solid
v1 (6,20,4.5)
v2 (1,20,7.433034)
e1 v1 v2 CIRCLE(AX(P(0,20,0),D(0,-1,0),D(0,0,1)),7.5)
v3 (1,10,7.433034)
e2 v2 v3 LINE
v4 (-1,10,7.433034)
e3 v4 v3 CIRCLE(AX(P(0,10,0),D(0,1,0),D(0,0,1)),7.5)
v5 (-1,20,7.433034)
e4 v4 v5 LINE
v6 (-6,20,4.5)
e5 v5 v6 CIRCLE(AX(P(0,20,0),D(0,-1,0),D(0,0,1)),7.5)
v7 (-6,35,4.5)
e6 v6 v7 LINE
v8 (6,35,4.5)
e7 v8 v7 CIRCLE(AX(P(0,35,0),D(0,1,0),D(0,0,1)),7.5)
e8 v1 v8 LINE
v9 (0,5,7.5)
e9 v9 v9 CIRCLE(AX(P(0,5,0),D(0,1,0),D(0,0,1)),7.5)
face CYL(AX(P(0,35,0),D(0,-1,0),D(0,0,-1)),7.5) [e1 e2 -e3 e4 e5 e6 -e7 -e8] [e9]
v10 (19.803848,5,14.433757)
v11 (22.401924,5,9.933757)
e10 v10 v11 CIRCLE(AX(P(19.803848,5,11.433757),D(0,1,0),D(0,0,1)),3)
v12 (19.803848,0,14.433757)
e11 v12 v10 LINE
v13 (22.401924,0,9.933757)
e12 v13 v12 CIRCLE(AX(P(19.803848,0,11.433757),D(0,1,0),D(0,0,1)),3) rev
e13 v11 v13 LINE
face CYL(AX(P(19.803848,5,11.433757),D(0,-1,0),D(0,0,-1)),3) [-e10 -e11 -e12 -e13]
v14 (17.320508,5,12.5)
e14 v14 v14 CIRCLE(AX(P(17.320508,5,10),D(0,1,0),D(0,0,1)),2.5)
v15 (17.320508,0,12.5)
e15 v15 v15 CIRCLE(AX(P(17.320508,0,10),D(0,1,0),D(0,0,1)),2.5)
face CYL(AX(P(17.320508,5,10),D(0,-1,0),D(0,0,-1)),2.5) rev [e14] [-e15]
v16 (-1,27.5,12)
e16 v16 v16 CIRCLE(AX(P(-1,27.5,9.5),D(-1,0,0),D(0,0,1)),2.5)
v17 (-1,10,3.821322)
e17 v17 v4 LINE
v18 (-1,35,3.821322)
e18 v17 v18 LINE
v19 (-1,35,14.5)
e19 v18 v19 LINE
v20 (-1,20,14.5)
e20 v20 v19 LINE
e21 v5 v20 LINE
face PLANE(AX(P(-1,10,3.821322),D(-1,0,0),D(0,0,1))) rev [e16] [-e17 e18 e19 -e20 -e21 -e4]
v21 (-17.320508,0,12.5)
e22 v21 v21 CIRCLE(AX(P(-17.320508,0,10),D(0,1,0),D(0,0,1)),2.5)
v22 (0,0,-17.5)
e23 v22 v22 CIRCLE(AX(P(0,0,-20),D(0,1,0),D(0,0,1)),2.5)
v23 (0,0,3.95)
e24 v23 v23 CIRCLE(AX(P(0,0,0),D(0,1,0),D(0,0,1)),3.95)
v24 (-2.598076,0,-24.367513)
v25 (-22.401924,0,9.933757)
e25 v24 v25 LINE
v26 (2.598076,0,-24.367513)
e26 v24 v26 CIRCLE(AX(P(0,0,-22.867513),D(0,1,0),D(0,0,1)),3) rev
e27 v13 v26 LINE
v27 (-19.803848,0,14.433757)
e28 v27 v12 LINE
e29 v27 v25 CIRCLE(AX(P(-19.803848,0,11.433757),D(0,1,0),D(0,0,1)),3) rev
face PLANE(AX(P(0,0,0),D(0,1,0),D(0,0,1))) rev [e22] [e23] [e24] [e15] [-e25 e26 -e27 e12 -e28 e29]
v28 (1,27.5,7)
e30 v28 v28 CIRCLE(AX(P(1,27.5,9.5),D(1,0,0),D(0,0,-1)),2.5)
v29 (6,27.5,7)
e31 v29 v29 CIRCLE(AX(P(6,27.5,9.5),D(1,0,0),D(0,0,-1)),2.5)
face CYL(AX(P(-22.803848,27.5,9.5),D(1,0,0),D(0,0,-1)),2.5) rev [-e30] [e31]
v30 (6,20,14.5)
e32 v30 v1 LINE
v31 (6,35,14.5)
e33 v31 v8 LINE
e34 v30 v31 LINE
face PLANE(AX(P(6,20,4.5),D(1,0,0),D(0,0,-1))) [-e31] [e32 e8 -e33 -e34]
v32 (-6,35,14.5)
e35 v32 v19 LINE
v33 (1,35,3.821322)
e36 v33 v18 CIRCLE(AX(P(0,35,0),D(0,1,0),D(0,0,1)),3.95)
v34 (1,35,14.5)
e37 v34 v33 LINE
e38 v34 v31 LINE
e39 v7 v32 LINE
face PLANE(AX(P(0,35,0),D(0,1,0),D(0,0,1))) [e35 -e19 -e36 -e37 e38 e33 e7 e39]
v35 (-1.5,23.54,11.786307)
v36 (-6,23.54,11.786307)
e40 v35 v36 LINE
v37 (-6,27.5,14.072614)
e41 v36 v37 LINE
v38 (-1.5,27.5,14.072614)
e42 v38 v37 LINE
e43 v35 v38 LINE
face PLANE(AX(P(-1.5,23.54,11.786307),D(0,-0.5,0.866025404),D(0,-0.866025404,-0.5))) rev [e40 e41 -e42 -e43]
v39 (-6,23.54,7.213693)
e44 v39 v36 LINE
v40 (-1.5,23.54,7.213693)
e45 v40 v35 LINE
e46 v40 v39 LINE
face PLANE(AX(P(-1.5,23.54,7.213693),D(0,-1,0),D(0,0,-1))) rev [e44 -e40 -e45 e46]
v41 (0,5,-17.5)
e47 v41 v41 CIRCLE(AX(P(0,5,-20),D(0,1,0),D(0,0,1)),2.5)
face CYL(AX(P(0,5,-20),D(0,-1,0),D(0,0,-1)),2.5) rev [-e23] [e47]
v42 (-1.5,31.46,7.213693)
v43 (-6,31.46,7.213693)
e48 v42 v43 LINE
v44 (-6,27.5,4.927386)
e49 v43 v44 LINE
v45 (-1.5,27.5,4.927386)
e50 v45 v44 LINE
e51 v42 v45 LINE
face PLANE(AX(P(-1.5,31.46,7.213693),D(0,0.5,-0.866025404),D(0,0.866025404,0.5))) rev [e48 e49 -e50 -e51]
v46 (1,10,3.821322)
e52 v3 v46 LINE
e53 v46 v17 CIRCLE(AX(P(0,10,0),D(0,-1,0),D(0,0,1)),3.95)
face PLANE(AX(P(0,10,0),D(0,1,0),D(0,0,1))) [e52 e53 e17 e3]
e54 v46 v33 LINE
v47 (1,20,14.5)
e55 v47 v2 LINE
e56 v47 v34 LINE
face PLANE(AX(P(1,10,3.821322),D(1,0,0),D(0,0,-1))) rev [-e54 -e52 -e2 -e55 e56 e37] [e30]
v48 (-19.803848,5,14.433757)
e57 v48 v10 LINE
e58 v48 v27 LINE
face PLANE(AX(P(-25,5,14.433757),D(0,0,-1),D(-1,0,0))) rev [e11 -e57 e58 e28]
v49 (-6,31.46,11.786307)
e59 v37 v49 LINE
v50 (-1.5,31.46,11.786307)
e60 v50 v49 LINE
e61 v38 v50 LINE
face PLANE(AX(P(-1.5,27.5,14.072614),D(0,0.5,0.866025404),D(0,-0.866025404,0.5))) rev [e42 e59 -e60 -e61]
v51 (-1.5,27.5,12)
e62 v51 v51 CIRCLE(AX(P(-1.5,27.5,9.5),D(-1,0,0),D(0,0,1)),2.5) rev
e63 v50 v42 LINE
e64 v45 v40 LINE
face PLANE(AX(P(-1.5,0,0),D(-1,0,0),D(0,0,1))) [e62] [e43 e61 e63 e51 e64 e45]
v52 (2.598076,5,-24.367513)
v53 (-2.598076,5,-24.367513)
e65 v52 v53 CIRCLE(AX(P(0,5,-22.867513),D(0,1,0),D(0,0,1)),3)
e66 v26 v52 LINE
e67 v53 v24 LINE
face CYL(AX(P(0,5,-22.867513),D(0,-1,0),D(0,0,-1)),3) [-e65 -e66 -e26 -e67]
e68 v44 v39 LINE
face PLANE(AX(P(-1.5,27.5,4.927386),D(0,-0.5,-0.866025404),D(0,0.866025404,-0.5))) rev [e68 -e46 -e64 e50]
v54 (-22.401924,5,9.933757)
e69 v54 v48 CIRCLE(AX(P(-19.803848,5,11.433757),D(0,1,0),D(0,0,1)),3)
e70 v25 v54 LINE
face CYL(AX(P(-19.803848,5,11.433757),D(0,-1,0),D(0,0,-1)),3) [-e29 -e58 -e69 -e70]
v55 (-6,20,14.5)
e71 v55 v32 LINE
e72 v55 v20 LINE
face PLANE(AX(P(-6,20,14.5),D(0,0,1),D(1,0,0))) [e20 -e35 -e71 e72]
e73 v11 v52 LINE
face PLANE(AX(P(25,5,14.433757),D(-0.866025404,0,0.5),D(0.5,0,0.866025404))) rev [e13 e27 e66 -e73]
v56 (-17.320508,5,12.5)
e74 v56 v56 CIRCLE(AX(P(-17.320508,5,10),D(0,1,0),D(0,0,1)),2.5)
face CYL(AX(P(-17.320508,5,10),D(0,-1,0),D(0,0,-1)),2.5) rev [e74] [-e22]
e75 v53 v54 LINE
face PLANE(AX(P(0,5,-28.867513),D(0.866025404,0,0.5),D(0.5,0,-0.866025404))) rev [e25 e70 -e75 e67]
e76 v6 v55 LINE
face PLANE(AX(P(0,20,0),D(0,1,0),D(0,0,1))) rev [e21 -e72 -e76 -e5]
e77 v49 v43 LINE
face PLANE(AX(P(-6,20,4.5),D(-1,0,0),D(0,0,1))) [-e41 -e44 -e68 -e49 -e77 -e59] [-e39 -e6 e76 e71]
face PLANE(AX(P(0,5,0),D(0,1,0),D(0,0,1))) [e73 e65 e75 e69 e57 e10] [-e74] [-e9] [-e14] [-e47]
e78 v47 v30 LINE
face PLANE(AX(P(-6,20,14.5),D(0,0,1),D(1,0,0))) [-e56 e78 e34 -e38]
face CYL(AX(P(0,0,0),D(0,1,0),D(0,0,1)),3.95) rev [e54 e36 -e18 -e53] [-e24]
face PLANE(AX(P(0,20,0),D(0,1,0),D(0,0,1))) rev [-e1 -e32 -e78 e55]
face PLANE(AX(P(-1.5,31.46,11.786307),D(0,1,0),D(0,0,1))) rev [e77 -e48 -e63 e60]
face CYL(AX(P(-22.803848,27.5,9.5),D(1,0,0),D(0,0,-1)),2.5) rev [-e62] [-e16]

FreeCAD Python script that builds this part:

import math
import FreeCAD as App
import Part
import Sketcher

V = App.Vector
Q = App.Units.Quantity


def edges_at(feature, points):
    """Names of the edges that pass closest to the given points."""
    edges = feature.Shape.Edges
    near = lambda p: min(range(len(edges)), key=lambda i: edges[i].distToShape(Part.Vertex(*p))[0])
    return sorted({f"Edge{near(p) + 1}" for p in points})


def add_polygon(sketch, points):
    """Adds a closed chain of lines whose ends are joined by coincident constraints."""
    first, n = sketch.GeometryCount, len(points)
    for a, b in zip(points, points[1:] + points[:1]):
        sketch.addGeometry(Part.LineSegment(App.Vector(*a, 0), App.Vector(*b, 0)), False)
    for i in range(n):
        sketch.addConstraint(Sketcher.Constraint("Coincident", first + i, 2, first + (i + 1) % n, 1))

doc = App.newDocument("Part")
params = doc.addObject("Spreadsheet::Sheet", "Params")
for row, (alias, value) in enumerate([
    ("sketch1_diameter", "5 mm"),
    ("sketch1_width", "50 mm"),
    ("pad1_length", "5 mm"),
    ("sketch2_diameter", "15 mm"),
    ("pad2_length", "30 mm"),
    ("sketch3_radius", "7.5 mm"),
    ("sketch3_width", "12 mm"),
    ("sketch3_height", "10 mm"),
    ("pad3_length", "15 mm"),
    ("sketch4_diameter", "7.9 mm"),
    ("sketch5_width", "2 mm"),
    ("sketch5_radius", "3.95 mm"),
    ("pocket2_length", "25 mm"),
    ("fillet_radius", "3 mm"),
    ("sketch6_diameter", "5 mm"),
    ("pocket4_length", "4.5 mm"),
], start=1):
    params.set(f"A{row}", alias)
    params.set(f"B{row}", "=" + value)
    params.setAlias(f"B{row}", alias)

body = doc.addObject("PartDesign::Body", "Body")

sketch1 = body.newObject("Sketcher::SketchObject", "Sketch")
sketch1.AttachmentSupport = (doc.getObject("XZ_Plane"), [""])
sketch1.MapMode = "FlatFace"
add_polygon(sketch1, [(-25, 14.4), (25, 14.4), (0, -28.9)])
sketch1.addGeometry(Part.Circle(V(-17.3, 10, 0), V(0, 0, 1), 2.5), False)
sketch1.addGeometry(Part.Circle(V(17.3, 10, 0), V(0, 0, 1), 2.5), False)
sketch1.addGeometry(Part.Circle(V(0, -20, 0), V(0, 0, 1), 2.5), False)
sketch1.addConstraint(Sketcher.Constraint("Horizontal", 0))
sketch1.addConstraint(Sketcher.Constraint("Equal", 3, 4))
sketch1.addConstraint(Sketcher.Constraint("Equal", 4, 5))
sketch1.addConstraint(Sketcher.Constraint("Symmetric", 3, 3, 4, 3, -2))
sketch1.addConstraint(Sketcher.Constraint("PointOnObject", 5, 3, -2))
sketch1.addConstraint(Sketcher.Constraint("PointOnObject", 1, 2, -2))
sketch1.addConstraint(Sketcher.Constraint("Equal", 1, 2))
sketch1.addConstraint(Sketcher.Constraint("Diameter", 3, 5.0))
sketch1.addConstraint(Sketcher.Constraint("DistanceX", 0, 1, 0, 2, 50.0))
sketch1.addConstraint(Sketcher.Constraint("Angle", 1, Q("-120 deg")))
sketch1.addConstraint(Sketcher.Constraint("DistanceY", -1, 1, 3, 3, 10.0))
sketch1.addConstraint(Sketcher.Constraint("DistanceY", 5, 3, -1, 1, 20.0))
sketch1.addConstraint(Sketcher.Constraint("DistanceX", 3, 3, -1, 1, 17.320508))
sketch1.addConstraint(Sketcher.Constraint("DistanceY", -1, 1, 0, 2, 14.433757))
sketch1.setExpression("Constraints[10]", "Params.sketch1_diameter")
sketch1.setExpression("Constraints[11]", "Params.sketch1_width")
pad1 = body.newObject("PartDesign::Pad", "Pad")
pad1.Profile = sketch1
pad1.setExpression("Length", "Params.pad1_length")
pad1.Reversed = True

sketch2 = body.newObject("Sketcher::SketchObject", "Sketch001")
sketch2.AttachmentSupport = (doc.getObject("XZ_Plane"), [""])
sketch2.MapMode = "FlatFace"
sketch2.AttachmentOffset = App.Placement(V(0, 0, -5), App.Rotation())
sketch2.addGeometry(Part.Circle(V(0, 0, 0), V(0, 0, 1), 8), False)
sketch2.addConstraint(Sketcher.Constraint("Coincident", 0, 3, -1, 1))
sketch2.addConstraint(Sketcher.Constraint("Diameter", 0, 15.0))
sketch2.setExpression("Constraints[1]", "Params.sketch2_diameter")
pad2 = body.newObject("PartDesign::Pad", "Pad001")
pad2.Profile = sketch2
pad2.setExpression("Length", "Params.pad2_length")
pad2.Reversed = True

sketch3 = body.newObject("Sketcher::SketchObject", "Sketch002")
sketch3.AttachmentSupport = (doc.getObject("XZ_Plane"), [""])
sketch3.MapMode = "FlatFace"
sketch3.AttachmentOffset = App.Placement(V(0, 0, -20), App.Rotation())
sketch3.addGeometry(Part.LineSegment(V(-6, 4, 0), V(-6, 14, 0)), False)
sketch3.addGeometry(Part.LineSegment(V(-6, 14, 0), V(6, 14, 0)), False)
sketch3.addGeometry(Part.LineSegment(V(6, 14, 0), V(6, 4, 0)), False)
sketch3.addGeometry(Part.ArcOfCircle(Part.Circle(V(0, 0, 0), V(0, 0, 1), 8), math.radians(37), math.radians(143)), False)
sketch3.addConstraint(Sketcher.Constraint("Coincident", 0, 2, 1, 1))
sketch3.addConstraint(Sketcher.Constraint("Coincident", 1, 2, 2, 1))
sketch3.addConstraint(Sketcher.Constraint("Coincident", 2, 2, 3, 1))
sketch3.addConstraint(Sketcher.Constraint("Coincident", 3, 2, 0, 1))
sketch3.addConstraint(Sketcher.Constraint("Vertical", 0))
sketch3.addConstraint(Sketcher.Constraint("Horizontal", 1))
sketch3.addConstraint(Sketcher.Constraint("Vertical", 2))
sketch3.addConstraint(Sketcher.Constraint("Coincident", 3, 3, -1, 1))
sketch3.addConstraint(Sketcher.Constraint("Horizontal", 2, 2, 3, 2))
sketch3.addConstraint(Sketcher.Constraint("Radius", 3, 7.5))
sketch3.addConstraint(Sketcher.Constraint("DistanceX", 1, 1, 1, 2, 12.0))
sketch3.addConstraint(Sketcher.Constraint("DistanceY", 0, 1, 0, 2, 10.0))
sketch3.setExpression("Constraints[9]", "Params.sketch3_radius")
sketch3.setExpression("Constraints[10]", "Params.sketch3_width")
sketch3.setExpression("Constraints[11]", "Params.sketch3_height")
pad3 = body.newObject("PartDesign::Pad", "Pad002")
pad3.Profile = sketch3
pad3.setExpression("Length", "Params.pad3_length")
pad3.Reversed = True

sketch4 = body.newObject("Sketcher::SketchObject", "Sketch003")
sketch4.AttachmentSupport = (doc.getObject("XZ_Plane"), [""])
sketch4.MapMode = "FlatFace"
sketch4.AttachmentOffset = App.Placement(V(0, 0, -35), App.Rotation())
sketch4.addGeometry(Part.Circle(V(0, 0, 0), V(0, 0, 1), 4), False)
sketch4.addConstraint(Sketcher.Constraint("Coincident", 0, 3, -1, 1))
sketch4.addConstraint(Sketcher.Constraint("Diameter", 0, 7.9))
sketch4.setExpression("Constraints[1]", "Params.sketch4_diameter")
pocket1 = body.newObject("PartDesign::Pocket", "Pocket")
pocket1.Profile = sketch4
pocket1.Type = "ThroughAll"
pocket1.Reversed = True

sketch5 = body.newObject("Sketcher::SketchObject", "Sketch004")
sketch5.AttachmentSupport = (doc.getObject("XZ_Plane"), [""])
sketch5.MapMode = "FlatFace"
sketch5.AttachmentOffset = App.Placement(V(0, 0, -35), App.Rotation())
sketch5.addGeometry(Part.LineSegment(V(-1, 3.8, 0), V(-1, 14.5, 0)), False)
sketch5.addGeometry(Part.LineSegment(V(-1, 14.5, 0), V(1, 14.5, 0)), False)
sketch5.addGeometry(Part.LineSegment(V(1, 14.5, 0), V(1, 3.8, 0)), False)
sketch5.addGeometry(Part.ArcOfCircle(Part.Circle(V(0, 0, 0), V(0, 0, 1), 4), math.radians(75), math.radians(105)), False)
sketch5.addConstraint(Sketcher.Constraint("Coincident", 0, 2, 1, 1))
sketch5.addConstraint(Sketcher.Constraint("Coincident", 1, 2, 2, 1))
sketch5.addConstraint(Sketcher.Constraint("Coincident", 2, 2, 3, 1))
sketch5.addConstraint(Sketcher.Constraint("Coincident", 3, 2, 0, 1))
sketch5.addConstraint(Sketcher.Constraint("Vertical", 0))
sketch5.addConstraint(Sketcher.Constraint("Horizontal", 1))
sketch5.addConstraint(Sketcher.Constraint("Vertical", 2))
sketch5.addConstraint(Sketcher.Constraint("Coincident", 3, 3, -1, 1))
sketch5.addConstraint(Sketcher.Constraint("Horizontal", 2, 2, 3, 2))
sketch5.addConstraint(Sketcher.Constraint("DistanceX", 1, 1, 1, 2, 2.0))
sketch5.addConstraint(Sketcher.Constraint("Radius", 3, 3.95))
sketch5.addConstraint(Sketcher.Constraint("DistanceY", -1, 1, 0, 2, 14.5))
sketch5.setExpression("Constraints[9]", "Params.sketch5_width")
sketch5.setExpression("Constraints[10]", "Params.sketch5_radius")
pocket2 = body.newObject("PartDesign::Pocket", "Pocket001")
pocket2.Profile = sketch5
pocket2.setExpression("Length", "Params.pocket2_length")
pocket2.Reversed = True
doc.recompute()

fillet = body.newObject("PartDesign::Fillet", "Fillet")
fillet.Base = (pocket2, edges_at(pocket2, [(0, 2.5, -28.868), (25, 2.5, 14.434), (-25, 2.5, 14.434)]))
fillet.setExpression("Radius", "Params.fillet_radius")

sketch6 = body.newObject("Sketcher::SketchObject", "Sketch005")
sketch6.AttachmentSupport = (doc.getObject("YZ_Plane"), [""])
sketch6.MapMode = "FlatFace"
sketch6.AttachmentOffset = App.Placement(V(0, 0, 6), App.Rotation())
sketch6.addGeometry(Part.Circle(V(27.5, 9.5, 0), V(0, 0, 1), 2.5), False)
sketch6.addConstraint(Sketcher.Constraint("Diameter", 0, 5.0))
sketch6.addConstraint(Sketcher.Constraint("DistanceX", -1, 1, 0, 3, 27.5))
sketch6.addConstraint(Sketcher.Constraint("DistanceY", -1, 1, 0, 3, 9.5))
sketch6.setExpression("Constraints[0]", "Params.sketch6_diameter")
pocket3 = body.newObject("PartDesign::Pocket", "Pocket002")
pocket3.Profile = sketch6
pocket3.Type = "ThroughAll"

sketch7 = body.newObject("Sketcher::SketchObject", "Sketch006")
sketch7.AttachmentSupport = (doc.getObject("YZ_Plane"), [""])
sketch7.MapMode = "FlatFace"
sketch7.AttachmentOffset = App.Placement(V(0, 0, -6), App.Rotation())
add_polygon(sketch7, [(31.5, 11.8), (31.5, 7.2), (27.5, 4.9), (23.5, 7.2), (23.5, 11.8), (27.5, 14.1)])
sketch7.addConstraint(Sketcher.Constraint("Vertical", 0))
sketch7.addConstraint(Sketcher.Constraint("Vertical", 3))
sketch7.addConstraint(Sketcher.Constraint("Parallel", 1, 4))
sketch7.addConstraint(Sketcher.Constraint("Parallel", 2, 5))
sketch7.addConstraint(Sketcher.Constraint("Horizontal", 0, 2, 2, 2))
sketch7.addConstraint(Sketcher.Constraint("Horizontal", 3, 2, 5, 2))
sketch7.addConstraint(Sketcher.Constraint("Vertical", 1, 2, 4, 2))
sketch7.addConstraint(Sketcher.Constraint("Angle", 1, Q("-150 deg")))
sketch7.addConstraint(Sketcher.Constraint("DistanceX", -1, 1, 1, 2, 27.5))
sketch7.addConstraint(Sketcher.Constraint("DistanceX", -1, 1, 0, 2, 31.46))
sketch7.addConstraint(Sketcher.Constraint("DistanceY", 0, 2, 0, 1, 4.572614))
sketch7.addConstraint(Sketcher.Constraint("DistanceY", -1, 1, 0, 2, 7.213693))
pocket4 = body.newObject("PartDesign::Pocket", "Pocket003")
pocket4.Profile = sketch7
pocket4.setExpression("Length", "Params.pocket4_length")
pocket4.Reversed = True

doc.recompute()
